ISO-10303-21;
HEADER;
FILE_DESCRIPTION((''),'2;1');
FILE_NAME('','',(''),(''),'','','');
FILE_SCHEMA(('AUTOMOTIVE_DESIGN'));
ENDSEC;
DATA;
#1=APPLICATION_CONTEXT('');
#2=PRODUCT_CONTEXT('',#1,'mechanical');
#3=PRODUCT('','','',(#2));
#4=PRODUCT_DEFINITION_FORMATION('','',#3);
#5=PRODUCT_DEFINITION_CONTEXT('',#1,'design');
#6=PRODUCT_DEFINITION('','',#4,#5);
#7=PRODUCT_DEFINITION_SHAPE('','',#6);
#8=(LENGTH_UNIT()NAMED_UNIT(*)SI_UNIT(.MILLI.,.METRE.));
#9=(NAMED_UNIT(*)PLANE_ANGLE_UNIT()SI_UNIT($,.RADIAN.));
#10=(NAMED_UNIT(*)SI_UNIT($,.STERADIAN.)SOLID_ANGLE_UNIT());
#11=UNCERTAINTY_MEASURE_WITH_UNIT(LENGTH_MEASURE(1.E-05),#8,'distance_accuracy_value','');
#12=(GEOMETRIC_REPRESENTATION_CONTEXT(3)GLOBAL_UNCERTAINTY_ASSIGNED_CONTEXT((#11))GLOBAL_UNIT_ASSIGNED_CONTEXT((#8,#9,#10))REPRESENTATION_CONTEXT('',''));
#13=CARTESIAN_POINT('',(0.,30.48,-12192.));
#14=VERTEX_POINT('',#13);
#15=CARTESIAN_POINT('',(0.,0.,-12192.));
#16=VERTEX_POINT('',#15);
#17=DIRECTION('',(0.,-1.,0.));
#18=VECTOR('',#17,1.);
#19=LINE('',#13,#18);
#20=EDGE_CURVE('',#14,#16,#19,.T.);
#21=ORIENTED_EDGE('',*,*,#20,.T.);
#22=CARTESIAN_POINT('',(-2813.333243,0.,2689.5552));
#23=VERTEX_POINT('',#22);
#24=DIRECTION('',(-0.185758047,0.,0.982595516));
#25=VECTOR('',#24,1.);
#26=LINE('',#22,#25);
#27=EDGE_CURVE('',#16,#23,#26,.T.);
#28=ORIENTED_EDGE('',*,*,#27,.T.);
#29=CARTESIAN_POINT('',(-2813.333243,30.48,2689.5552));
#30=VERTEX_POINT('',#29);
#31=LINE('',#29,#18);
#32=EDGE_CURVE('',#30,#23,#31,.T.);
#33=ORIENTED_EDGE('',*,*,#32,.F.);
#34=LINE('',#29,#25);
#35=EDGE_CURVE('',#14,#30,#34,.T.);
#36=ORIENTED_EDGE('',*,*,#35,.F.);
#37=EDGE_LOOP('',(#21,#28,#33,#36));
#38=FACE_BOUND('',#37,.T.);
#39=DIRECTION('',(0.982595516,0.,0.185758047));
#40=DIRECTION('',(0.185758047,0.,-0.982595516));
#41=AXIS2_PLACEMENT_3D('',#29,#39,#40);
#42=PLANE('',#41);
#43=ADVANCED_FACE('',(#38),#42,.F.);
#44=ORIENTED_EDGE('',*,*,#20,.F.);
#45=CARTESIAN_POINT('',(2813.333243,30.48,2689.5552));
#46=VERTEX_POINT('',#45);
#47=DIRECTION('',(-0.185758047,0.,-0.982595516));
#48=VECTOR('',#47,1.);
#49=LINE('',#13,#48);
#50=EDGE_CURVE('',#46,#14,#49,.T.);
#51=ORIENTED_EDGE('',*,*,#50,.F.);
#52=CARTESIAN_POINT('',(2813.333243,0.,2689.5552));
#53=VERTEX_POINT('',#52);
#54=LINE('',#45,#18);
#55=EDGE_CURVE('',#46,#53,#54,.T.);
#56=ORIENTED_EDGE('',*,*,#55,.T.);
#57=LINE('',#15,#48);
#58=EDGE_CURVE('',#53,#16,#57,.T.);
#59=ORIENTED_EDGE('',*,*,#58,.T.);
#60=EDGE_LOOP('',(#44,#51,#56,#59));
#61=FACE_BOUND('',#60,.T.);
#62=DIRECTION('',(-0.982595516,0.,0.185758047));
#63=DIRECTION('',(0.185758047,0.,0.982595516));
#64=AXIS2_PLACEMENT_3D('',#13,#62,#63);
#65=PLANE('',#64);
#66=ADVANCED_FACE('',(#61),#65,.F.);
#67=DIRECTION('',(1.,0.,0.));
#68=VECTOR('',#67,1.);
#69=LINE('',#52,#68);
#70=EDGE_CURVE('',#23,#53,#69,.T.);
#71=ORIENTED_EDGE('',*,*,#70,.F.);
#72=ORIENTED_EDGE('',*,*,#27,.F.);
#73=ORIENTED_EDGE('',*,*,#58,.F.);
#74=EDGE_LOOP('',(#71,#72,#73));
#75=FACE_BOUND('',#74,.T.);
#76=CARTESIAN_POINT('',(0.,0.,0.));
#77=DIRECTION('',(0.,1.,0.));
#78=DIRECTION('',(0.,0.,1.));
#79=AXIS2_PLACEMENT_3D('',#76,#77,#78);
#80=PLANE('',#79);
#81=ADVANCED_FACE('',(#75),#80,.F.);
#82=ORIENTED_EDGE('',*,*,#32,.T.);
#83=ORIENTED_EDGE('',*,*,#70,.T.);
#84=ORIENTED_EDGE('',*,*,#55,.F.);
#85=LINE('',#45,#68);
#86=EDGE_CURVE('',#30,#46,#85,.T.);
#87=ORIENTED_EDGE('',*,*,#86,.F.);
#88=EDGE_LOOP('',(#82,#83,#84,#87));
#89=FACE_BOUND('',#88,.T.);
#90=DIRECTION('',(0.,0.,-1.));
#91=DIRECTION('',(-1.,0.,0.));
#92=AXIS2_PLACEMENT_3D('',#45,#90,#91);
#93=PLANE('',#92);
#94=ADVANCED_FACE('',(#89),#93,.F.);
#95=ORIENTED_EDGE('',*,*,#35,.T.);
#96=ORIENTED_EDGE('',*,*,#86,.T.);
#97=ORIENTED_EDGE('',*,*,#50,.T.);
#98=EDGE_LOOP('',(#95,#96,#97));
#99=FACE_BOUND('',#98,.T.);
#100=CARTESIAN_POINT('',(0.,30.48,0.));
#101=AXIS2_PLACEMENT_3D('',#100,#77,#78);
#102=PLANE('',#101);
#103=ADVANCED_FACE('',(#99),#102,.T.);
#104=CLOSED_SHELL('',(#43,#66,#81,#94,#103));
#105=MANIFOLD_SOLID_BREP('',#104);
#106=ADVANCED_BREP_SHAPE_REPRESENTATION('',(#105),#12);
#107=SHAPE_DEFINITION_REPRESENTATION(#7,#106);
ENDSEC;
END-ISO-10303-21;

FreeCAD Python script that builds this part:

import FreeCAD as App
import Part
import Sketcher
from FreeCAD import Vector
Q = App.Units.Quantity


def add_polygon(sketch, points):
    """Adds a closed chain of lines whose ends are joined by coincident constraints."""
    first, n = sketch.GeometryCount, len(points)
    for a, b in zip(points, points[1:] + points[:1]):
        sketch.addGeometry(Part.LineSegment(App.Vector(*a, 0), App.Vector(*b, 0)), False)
    for i in range(n):
        sketch.addConstraint(Sketcher.Constraint("Coincident", first + i, 2, first + (i + 1) % n, 1))

doc = App.newDocument("Part")
body = doc.addObject("PartDesign::Body", "Body")

sketch1 = body.newObject("Sketcher::SketchObject", "Sketch")
sketch1.AttachmentSupport = (doc.getObject("XZ_Plane"), [""])
sketch1.MapMode = "FlatFace"
add_polygon(sketch1, [(2813, 2690), (0, -12192), (-2813, 2690)])
sketch1.addConstraint([
    Sketcher.Constraint("Horizontal", 2),
    Sketcher.Constraint("PointOnObject", 0, 2, -2),
    Sketcher.Constraint("Equal", 0, 1),
    Sketcher.Constraint("DistanceY", 0, 2, -1, 1, Q("480 in")),
    Sketcher.Constraint("DistanceY", -1, 1, 1, 2, Q("105.888 in")),
    Sketcher.Constraint("Distance", 0, Q("15145.148699 mm")),
])
pad1 = body.newObject("PartDesign::Pad", "Pad")
pad1.Profile = sketch1
pad1.Length = Q("1.2 in")
pad1.Reversed = True

doc.recompute()
